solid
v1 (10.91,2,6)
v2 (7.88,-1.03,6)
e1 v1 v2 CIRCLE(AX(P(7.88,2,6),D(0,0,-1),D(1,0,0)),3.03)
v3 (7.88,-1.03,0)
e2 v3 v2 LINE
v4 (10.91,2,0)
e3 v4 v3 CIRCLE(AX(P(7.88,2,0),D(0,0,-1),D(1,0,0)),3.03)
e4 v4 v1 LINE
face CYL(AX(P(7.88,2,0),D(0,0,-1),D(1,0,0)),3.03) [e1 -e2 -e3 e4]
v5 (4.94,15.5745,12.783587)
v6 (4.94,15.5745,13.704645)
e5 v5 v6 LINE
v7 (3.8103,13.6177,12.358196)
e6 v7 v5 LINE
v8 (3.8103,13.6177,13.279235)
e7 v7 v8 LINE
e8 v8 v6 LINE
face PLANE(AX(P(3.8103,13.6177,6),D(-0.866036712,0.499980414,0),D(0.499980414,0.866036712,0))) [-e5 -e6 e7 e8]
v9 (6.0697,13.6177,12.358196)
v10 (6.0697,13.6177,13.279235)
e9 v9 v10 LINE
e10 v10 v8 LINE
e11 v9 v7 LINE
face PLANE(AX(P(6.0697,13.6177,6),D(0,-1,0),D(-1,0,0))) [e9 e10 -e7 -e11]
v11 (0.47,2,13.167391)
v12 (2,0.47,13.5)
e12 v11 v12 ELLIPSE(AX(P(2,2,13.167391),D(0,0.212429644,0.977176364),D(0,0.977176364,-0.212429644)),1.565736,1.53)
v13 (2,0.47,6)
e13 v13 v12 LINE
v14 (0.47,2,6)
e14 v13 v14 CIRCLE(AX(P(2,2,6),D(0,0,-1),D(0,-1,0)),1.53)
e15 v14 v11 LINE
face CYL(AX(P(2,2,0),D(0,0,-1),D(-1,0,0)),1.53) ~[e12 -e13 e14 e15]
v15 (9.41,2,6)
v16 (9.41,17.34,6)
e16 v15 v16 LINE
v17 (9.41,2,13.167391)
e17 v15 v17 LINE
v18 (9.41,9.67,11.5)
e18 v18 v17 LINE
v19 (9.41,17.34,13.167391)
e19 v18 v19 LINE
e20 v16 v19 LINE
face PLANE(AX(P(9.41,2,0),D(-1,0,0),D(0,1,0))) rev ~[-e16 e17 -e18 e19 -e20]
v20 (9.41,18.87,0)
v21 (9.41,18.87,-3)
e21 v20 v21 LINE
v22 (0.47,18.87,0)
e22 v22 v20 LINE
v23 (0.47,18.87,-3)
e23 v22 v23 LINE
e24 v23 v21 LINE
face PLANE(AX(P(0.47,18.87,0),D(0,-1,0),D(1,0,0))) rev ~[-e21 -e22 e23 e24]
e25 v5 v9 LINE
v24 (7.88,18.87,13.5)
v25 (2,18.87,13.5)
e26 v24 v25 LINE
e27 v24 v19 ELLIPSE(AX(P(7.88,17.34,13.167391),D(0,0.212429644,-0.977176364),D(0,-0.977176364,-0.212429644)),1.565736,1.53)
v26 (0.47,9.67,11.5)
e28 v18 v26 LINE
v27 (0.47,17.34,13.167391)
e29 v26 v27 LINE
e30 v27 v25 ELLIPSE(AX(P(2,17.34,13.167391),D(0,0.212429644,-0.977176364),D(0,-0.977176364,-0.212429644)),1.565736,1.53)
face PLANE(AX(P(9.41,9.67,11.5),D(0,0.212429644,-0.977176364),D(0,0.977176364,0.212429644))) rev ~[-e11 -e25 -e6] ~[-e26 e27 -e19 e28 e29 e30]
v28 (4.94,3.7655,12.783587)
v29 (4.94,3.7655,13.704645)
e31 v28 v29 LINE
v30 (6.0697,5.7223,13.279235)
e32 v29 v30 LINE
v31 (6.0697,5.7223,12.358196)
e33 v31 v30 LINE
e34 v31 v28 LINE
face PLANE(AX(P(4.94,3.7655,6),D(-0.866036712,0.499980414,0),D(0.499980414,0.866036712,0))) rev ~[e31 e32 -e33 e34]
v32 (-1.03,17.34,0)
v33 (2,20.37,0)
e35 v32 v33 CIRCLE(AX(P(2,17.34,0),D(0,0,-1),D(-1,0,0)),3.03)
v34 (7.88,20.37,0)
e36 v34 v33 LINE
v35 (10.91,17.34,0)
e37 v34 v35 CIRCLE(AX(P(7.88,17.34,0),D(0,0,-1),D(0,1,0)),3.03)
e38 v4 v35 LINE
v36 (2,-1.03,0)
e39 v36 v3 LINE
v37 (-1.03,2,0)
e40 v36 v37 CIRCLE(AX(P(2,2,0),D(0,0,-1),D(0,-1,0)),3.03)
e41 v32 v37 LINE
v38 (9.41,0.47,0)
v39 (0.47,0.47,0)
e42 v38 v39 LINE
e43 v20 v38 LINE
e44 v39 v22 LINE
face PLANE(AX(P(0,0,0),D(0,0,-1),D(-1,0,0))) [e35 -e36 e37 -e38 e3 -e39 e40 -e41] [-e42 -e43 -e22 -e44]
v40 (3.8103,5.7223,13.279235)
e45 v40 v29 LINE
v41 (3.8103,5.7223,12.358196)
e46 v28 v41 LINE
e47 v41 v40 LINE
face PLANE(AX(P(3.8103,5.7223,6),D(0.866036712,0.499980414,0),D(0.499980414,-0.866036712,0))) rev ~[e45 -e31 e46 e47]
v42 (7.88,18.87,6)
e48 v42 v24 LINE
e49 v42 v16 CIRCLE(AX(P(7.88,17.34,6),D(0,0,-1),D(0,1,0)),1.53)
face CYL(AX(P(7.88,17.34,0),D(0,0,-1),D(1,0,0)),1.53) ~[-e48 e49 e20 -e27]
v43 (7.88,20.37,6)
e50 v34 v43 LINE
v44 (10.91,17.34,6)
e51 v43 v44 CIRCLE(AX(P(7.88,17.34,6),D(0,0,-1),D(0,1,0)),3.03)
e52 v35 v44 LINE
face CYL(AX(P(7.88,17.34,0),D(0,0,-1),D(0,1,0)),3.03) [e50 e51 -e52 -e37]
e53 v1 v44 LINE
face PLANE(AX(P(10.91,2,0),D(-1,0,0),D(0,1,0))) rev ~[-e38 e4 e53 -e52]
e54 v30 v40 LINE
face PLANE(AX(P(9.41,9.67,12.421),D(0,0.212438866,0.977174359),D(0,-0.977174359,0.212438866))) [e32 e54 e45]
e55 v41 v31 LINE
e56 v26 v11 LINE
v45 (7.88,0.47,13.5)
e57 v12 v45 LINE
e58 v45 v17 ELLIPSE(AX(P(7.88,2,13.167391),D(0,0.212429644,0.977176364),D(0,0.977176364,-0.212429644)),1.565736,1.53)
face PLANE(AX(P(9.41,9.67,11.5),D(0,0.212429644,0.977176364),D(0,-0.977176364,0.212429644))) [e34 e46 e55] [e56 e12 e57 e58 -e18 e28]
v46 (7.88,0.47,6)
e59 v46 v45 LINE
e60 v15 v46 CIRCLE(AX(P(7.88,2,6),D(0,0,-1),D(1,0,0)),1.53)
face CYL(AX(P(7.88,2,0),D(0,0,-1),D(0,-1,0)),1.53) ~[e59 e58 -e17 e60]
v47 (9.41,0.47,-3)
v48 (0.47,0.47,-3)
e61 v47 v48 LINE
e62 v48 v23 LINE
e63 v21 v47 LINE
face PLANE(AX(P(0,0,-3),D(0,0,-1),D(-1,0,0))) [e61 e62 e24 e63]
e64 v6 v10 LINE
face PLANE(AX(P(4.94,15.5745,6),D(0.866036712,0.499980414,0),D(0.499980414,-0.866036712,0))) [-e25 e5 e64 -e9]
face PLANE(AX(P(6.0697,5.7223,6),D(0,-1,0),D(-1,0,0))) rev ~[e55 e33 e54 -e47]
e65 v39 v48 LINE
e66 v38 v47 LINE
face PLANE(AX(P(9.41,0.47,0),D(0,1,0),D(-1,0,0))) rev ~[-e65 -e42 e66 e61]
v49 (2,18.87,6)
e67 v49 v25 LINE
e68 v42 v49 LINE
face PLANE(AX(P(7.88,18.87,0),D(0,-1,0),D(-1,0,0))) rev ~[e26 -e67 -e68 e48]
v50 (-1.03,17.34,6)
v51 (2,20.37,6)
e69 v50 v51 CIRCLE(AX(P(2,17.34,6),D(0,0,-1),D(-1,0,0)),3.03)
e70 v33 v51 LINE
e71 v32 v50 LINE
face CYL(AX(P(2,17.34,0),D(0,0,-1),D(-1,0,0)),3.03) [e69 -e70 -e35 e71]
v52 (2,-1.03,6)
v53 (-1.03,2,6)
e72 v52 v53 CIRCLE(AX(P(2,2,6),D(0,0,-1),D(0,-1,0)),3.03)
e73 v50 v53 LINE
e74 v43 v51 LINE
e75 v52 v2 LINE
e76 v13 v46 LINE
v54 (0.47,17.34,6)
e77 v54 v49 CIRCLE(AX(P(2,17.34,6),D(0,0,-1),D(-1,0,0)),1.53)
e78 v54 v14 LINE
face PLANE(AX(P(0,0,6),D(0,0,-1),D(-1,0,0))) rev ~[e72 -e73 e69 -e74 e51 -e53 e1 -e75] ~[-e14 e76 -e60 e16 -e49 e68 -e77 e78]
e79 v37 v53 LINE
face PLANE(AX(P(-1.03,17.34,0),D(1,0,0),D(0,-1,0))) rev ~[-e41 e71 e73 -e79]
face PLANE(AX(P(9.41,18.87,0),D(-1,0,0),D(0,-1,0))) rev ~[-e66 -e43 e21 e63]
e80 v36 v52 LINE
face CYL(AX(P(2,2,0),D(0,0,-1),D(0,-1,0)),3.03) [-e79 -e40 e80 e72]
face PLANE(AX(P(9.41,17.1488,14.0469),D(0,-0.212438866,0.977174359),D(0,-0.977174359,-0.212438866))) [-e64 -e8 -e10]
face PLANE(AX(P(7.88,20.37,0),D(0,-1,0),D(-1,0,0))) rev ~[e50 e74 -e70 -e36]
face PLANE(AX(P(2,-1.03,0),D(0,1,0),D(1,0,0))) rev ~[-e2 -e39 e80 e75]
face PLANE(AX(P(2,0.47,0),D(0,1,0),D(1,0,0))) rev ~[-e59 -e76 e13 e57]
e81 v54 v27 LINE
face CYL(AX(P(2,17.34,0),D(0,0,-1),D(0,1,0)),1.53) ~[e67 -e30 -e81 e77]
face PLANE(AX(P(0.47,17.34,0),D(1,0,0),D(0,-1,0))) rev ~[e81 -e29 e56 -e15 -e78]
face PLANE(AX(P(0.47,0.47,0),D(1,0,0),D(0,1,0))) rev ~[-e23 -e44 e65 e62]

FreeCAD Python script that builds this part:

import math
import FreeCAD as App
import Part
import Sketcher
Q = App.Units.Quantity


def add_polygon(sketch, points):
    """Adds a closed chain of lines whose ends are joined by coincident constraints."""
    first, n = sketch.GeometryCount, len(points)
    for a, b in zip(points, points[1:] + points[:1]):
        sketch.addGeometry(Part.LineSegment(App.Vector(*a, 0), App.Vector(*b, 0)), False)
    for i in range(n):
        sketch.addConstraint(Sketcher.Constraint("Coincident", first + i, 2, first + (i + 1) % n, 1))

doc = App.newDocument("Part")
body = doc.addObject("PartDesign::Body", "Body")

sketch1 = body.newObject("Sketcher::SketchObject", "Sketch")
sketch1.AttachmentSupport = (doc.getObject("XY_Plane"), [""])
sketch1.MapMode = "FlatFace"
sketch1.addGeometry(Part.ArcOfCircle(Part.Circle(App.Vector(2, 17.3, 0), App.Vector(0, 0, 1), 1.5), math.radians(90), math.radians(180)), False)
sketch1.addGeometry(Part.LineSegment(App.Vector(0.5, 17.3, 0), App.Vector(0.5, 2, 0)), False)
sketch1.addGeometry(Part.ArcOfCircle(Part.Circle(App.Vector(2, 2, 0), App.Vector(0, 0, 1), 1.5), math.radians(180), math.radians(270)), False)
sketch1.addGeometry(Part.LineSegment(App.Vector(2, 0.5, 0), App.Vector(7.9, 0.5, 0)), False)
sketch1.addGeometry(Part.ArcOfCircle(Part.Circle(App.Vector(7.9, 2, 0), App.Vector(0, 0, 1), 1.5), math.radians(-90), math.radians(0)), False)
sketch1.addGeometry(Part.LineSegment(App.Vector(9.4, 2, 0), App.Vector(9.4, 17.3, 0)), False)
sketch1.addGeometry(Part.ArcOfCircle(Part.Circle(App.Vector(7.9, 17.3, 0), App.Vector(0, 0, 1), 1.5), math.radians(0), math.radians(90)), False)
sketch1.addGeometry(Part.LineSegment(App.Vector(7.9, 18.9, 0), App.Vector(2, 18.9, 0)), False)
sketch1.addConstraint(Sketcher.Constraint("Tangent", 0, 2, 1, 1))
sketch1.addConstraint(Sketcher.Constraint("Tangent", 1, 2, 2, 1))
sketch1.addConstraint(Sketcher.Constraint("Tangent", 2, 2, 3, 1))
sketch1.addConstraint(Sketcher.Constraint("Tangent", 3, 2, 4, 1))
sketch1.addConstraint(Sketcher.Constraint("Tangent", 4, 2, 5, 1))
sketch1.addConstraint(Sketcher.Constraint("Tangent", 5, 2, 6, 1))
sketch1.addConstraint(Sketcher.Constraint("Tangent", 6, 2, 7, 1))
sketch1.addConstraint(Sketcher.Constraint("Tangent", 7, 2, 0, 1))
sketch1.addConstraint(Sketcher.Constraint("Vertical", 1))
sketch1.addConstraint(Sketcher.Constraint("Horizontal", 3))
sketch1.addConstraint(Sketcher.Constraint("Vertical", 5))
sketch1.addConstraint(Sketcher.Constraint("Horizontal", 7))
sketch1.addConstraint(Sketcher.Constraint("Equal", 0, 2))
sketch1.addConstraint(Sketcher.Constraint("Equal", 2, 4))
sketch1.addConstraint(Sketcher.Constraint("Equal", 4, 6))
sketch1.addConstraint(Sketcher.Constraint("DistanceX", -1, 1, 0, 2, Q("0.47 mm")))
sketch1.addConstraint(Sketcher.Constraint("DistanceY", -1, 1, 2, 2, Q("0.47 mm")))
sketch1.addConstraint(Sketcher.Constraint("Radius", 0, Q("1.53 mm")))
sketch1.addConstraint(Sketcher.Constraint("DistanceX", 3, 1, 3, 2, Q("5.88 mm")))
sketch1.addConstraint(Sketcher.Constraint("DistanceY", 1, 2, 1, 1, Q("15.34 mm")))
pad1 = body.newObject("PartDesign::Pad", "Pad")
pad1.Profile = sketch1
pad1.Length = 13.5

sketch2 = body.newObject("Sketcher::SketchObject", "Sketch001")
sketch2.AttachmentSupport = (doc.getObject("XY_Plane"), [""])
sketch2.MapMode = "FlatFace"
sketch2.addGeometry(Part.LineSegment(App.Vector(2, 20.4, 0), App.Vector(7.9, 20.4, 0)), False)
sketch2.addGeometry(Part.ArcOfCircle(Part.Circle(App.Vector(7.9, 17.3, 0), App.Vector(0, 0, 1), 3), math.radians(0), math.radians(90)), False)
sketch2.addGeometry(Part.LineSegment(App.Vector(10.9, 17.3, 0), App.Vector(10.9, 2, 0)), False)
sketch2.addGeometry(Part.ArcOfCircle(Part.Circle(App.Vector(7.9, 2, 0), App.Vector(0, 0, 1), 3), math.radians(-90), math.radians(0)), False)
sketch2.addGeometry(Part.LineSegment(App.Vector(7.9, -1, 0), App.Vector(2, -1, 0)), False)
sketch2.addGeometry(Part.ArcOfCircle(Part.Circle(App.Vector(2, 2, 0), App.Vector(0, 0, 1), 3), math.radians(180), math.radians(270)), False)
sketch2.addGeometry(Part.LineSegment(App.Vector(-1, 2, 0), App.Vector(-1, 17.3, 0)), False)
sketch2.addGeometry(Part.ArcOfCircle(Part.Circle(App.Vector(2, 17.3, 0), App.Vector(0, 0, 1), 3), math.radians(90), math.radians(180)), False)
sketch2.addGeometry(Part.ArcOfCircle(Part.Circle(App.Vector(2, 2, 0), App.Vector(0, 0, 1), 1.5), math.radians(180), math.radians(270)), False)
sketch2.addGeometry(Part.LineSegment(App.Vector(2, 0.5, 0), App.Vector(7.9, 0.5, 0)), False)
sketch2.addGeometry(Part.ArcOfCircle(Part.Circle(App.Vector(7.9, 2, 0), App.Vector(0, 0, 1), 1.5), math.radians(-90), math.radians(0)), False)
sketch2.addGeometry(Part.LineSegment(App.Vector(9.4, 2, 0), App.Vector(9.4, 17.3, 0)), False)
sketch2.addGeometry(Part.ArcOfCircle(Part.Circle(App.Vector(7.9, 17.3, 0), App.Vector(0, 0, 1), 1.5), math.radians(0), math.radians(90)), False)
sketch2.addGeometry(Part.LineSegment(App.Vector(7.9, 18.9, 0), App.Vector(2, 18.9, 0)), False)
sketch2.addGeometry(Part.ArcOfCircle(Part.Circle(App.Vector(2, 17.3, 0), App.Vector(0, 0, 1), 1.5), math.radians(90), math.radians(180)), False)
sketch2.addGeometry(Part.LineSegment(App.Vector(0.5, 17.3, 0), App.Vector(0.5, 2, 0)), False)
sketch2.addConstraint(Sketcher.Constraint("Tangent", 0, 2, 1, 2))
sketch2.addConstraint(Sketcher.Constraint("Tangent", 1, 1, 2, 1))
sketch2.addConstraint(Sketcher.Constraint("Tangent", 2, 2, 3, 2))
sketch2.addConstraint(Sketcher.Constraint("Tangent", 3, 1, 4, 1))
sketch2.addConstraint(Sketcher.Constraint("Tangent", 4, 2, 5, 2))
sketch2.addConstraint(Sketcher.Constraint("Tangent", 5, 1, 6, 1))
sketch2.addConstraint(Sketcher.Constraint("Tangent", 6, 2, 7, 2))
sketch2.addConstraint(Sketcher.Constraint("Tangent", 7, 1, 0, 1))
sketch2.addConstraint(Sketcher.Constraint("Tangent", 8, 2, 9, 1))
sketch2.addConstraint(Sketcher.Constraint("Tangent", 9, 2, 10, 1))
sketch2.addConstraint(Sketcher.Constraint("Tangent", 10, 2, 11, 1))
sketch2.addConstraint(Sketcher.Constraint("Tangent", 11, 2, 12, 1))
sketch2.addConstraint(Sketcher.Constraint("Tangent", 12, 2, 13, 1))
sketch2.addConstraint(Sketcher.Constraint("Tangent", 13, 2, 14, 1))
sketch2.addConstraint(Sketcher.Constraint("Tangent", 14, 2, 15, 1))
sketch2.addConstraint(Sketcher.Constraint("Tangent", 15, 2, 8, 1))
sketch2.addConstraint(Sketcher.Constraint("Horizontal", 0))
sketch2.addConstraint(Sketcher.Constraint("Vertical", 2))
sketch2.addConstraint(Sketcher.Constraint("Horizontal", 4))
sketch2.addConstraint(Sketcher.Constraint("Vertical", 6))
sketch2.addConstraint(Sketcher.Constraint("Horizontal", 9))
sketch2.addConstraint(Sketcher.Constraint("Vertical", 11))
sketch2.addConstraint(Sketcher.Constraint("Horizontal", 13))
sketch2.addConstraint(Sketcher.Constraint("Vertical", 15))
sketch2.addConstraint(Sketcher.Constraint("Coincident", 8, 3, 5, 3))
sketch2.addConstraint(Sketcher.Constraint("Coincident", 10, 3, 3, 3))
sketch2.addConstraint(Sketcher.Constraint("Coincident", 12, 3, 1, 3))
sketch2.addConstraint(Sketcher.Constraint("Equal", 1, 3))
sketch2.addConstraint(Sketcher.Constraint("Equal", 3, 5))
sketch2.addConstraint(Sketcher.Constraint("Equal", 5, 7))
sketch2.addConstraint(Sketcher.Constraint("Equal", 12, 14))
sketch2.addConstraint(Sketcher.Constraint("DistanceY", 4, 2, 8, 2, Q("1.5 mm")))
sketch2.addConstraint(Sketcher.Constraint("Radius", 1, Q("3.03 mm")))
sketch2.addConstraint(Sketcher.Constraint("DistanceY", -1, 1, 3, 3, Q("2 mm")))
sketch2.addConstraint(Sketcher.Constraint("DistanceX", -1, 1, 5, 3, Q("2 mm")))
sketch2.addConstraint(Sketcher.Constraint("DistanceX", 0, 1, 0, 2, Q("5.88 mm")))
sketch2.addConstraint(Sketcher.Constraint("DistanceY", 2, 2, 2, 1, Q("15.34 mm")))
pad2 = body.newObject("PartDesign::Pad", "Pad001")
pad2.Profile = sketch2
pad2.Length = 6

sketch3 = body.newObject("Sketcher::SketchObject", "Sketch002")
sketch3.AttachmentSupport = (doc.getObject("YZ_Plane"), [""])
sketch3.MapMode = "FlatFace"
sketch3.AttachmentOffset = App.Placement(App.Vector(0, 0, 9.41), App.Rotation())
add_polygon(sketch3, [(19, 14), (0, 14), (10, 12)])
sketch3.addConstraint(Sketcher.Constraint("Horizontal", 0))
sketch3.addConstraint(Sketcher.Constraint("Equal", 1, 2))
sketch3.addConstraint(Sketcher.Constraint("DistanceY", 1, 2, 0, 2, Q("2 mm")))
sketch3.addConstraint(Sketcher.Constraint("DistanceX", 0, 2, 0, 1, Q("18.4 mm")))
sketch3.addConstraint(Sketcher.Constraint("DistanceY", -1, 1, 0, 2, Q("13.5 mm")))
sketch3.addConstraint(Sketcher.Constraint("DistanceX", -1, 1, 0, 2, Q("0.47 mm")))
pocket1 = body.newObject("PartDesign::Pocket", "Pocket")
pocket1.Profile = sketch3
pocket1.Length = 9.175

sketch4 = body.newObject("Sketcher::SketchObject", "Sketch003")
sketch4.AttachmentSupport = (doc.getObject("XY_Plane"), [""])
sketch4.MapMode = "FlatFace"
sketch4.AttachmentOffset = App.Placement(App.Vector(0, 0, 6), App.Rotation())
add_polygon(sketch4, [(6.1, 13.6), (4.9, 15.6), (3.8, 13.6)])
add_polygon(sketch4, [(3.8, 5.7), (4.9, 3.8), (6.1, 5.7)])
sketch4.addConstraint(Sketcher.Constraint("Horizontal", 2))
sketch4.addConstraint(Sketcher.Constraint("Horizontal", 5))
sketch4.addConstraint(Sketcher.Constraint("Parallel", 0, 3))
sketch4.addConstraint(Sketcher.Constraint("Parallel", 1, 4))
sketch4.addConstraint(Sketcher.Constraint("Vertical", 0, 2, 3, 2))
sketch4.addConstraint(Sketcher.Constraint("Vertical", 2, 2, 4, 2))
sketch4.addConstraint(Sketcher.Constraint("Vertical", 1, 2, 5, 2))
sketch4.addConstraint(Sketcher.Constraint("DistanceX", -1, 1, 0, 2, Q("4.94 mm")))
sketch4.addConstraint(Sketcher.Constraint("DistanceX", 2, 1, 2, 2, Q("2.2594 mm")))
sketch4.addConstraint(Sketcher.Constraint("DistanceY", 3, 2, 0, 2, Q("11.809 mm")))
sketch4.addConstraint(Sketcher.Constraint("Distance", 0, Q("2.2595 mm")))
sketch4.addConstraint(Sketcher.Constraint("DistanceY", -1, 1, 0, 2, Q("15.5745 mm")))
pad3 = body.newObject("PartDesign::Pad", "Pad002")
pad3.Profile = sketch4
pad3.Length = 10.7625

sketch5 = body.newObject("Sketcher::SketchObject", "Sketch004")
sketch5.AttachmentSupport = (doc.getObject("YZ_Plane"), [""])
sketch5.MapMode = "FlatFace"
sketch5.AttachmentOffset = App.Placement(App.Vector(0, 0, 9.41), App.Rotation())
add_polygon(sketch5, [(9.7, 12.4), (17.1, 14), (17.3, 19), (0.5, 18.8), (2.2, 14)])
sketch5.addConstraint(Sketcher.Constraint("Horizontal", 0, 2, 3, 2))
sketch5.addConstraint(Sketcher.Constraint("Equal", 0, 4))
sketch5.addConstraint(Sketcher.Constraint("Angle", 1, Q("87.781 deg")))
sketch5.addConstraint(Sketcher.Constraint("Angle", 3, Q("-70.02 deg")))
sketch5.addConstraint(Sketcher.Constraint("DistanceX", -1, 1, 1, 2, Q("17.34 mm")))
sketch5.addConstraint(Sketcher.Constraint("DistanceX", -1, 1, 4, 2, Q("9.67 mm")))
sketch5.addConstraint(Sketcher.Constraint("DistanceY", -1, 1, 0, 2, Q("14.047 mm")))
sketch5.addConstraint(Sketcher.Constraint("DistanceY", -1, 1, 4, 2, Q("12.421 mm")))
sketch5.addConstraint(Sketcher.Constraint("DistanceX", 2, 2, 0, 2, Q("16.674 mm")))
sketch5.addConstraint(Sketcher.Constraint("DistanceY", 0, 2, 2, 2, Q("4.721 mm")))
pocket2 = body.newObject("PartDesign::Pocket", "Pocket001")
pocket2.Profile = sketch5
pocket2.Length = 10.7625

sketch6 = body.newObject("Sketcher::SketchObject", "Sketch005")
sketch6.AttachmentSupport = (doc.getObject("XY_Plane"), [""])
sketch6.MapMode = "FlatFace"
add_polygon(sketch6, [(0, 0), (0, 19), (9, 19), (9, 0)])
sketch6.addConstraint(Sketcher.Constraint("Vertical", 0))
sketch6.addConstraint(Sketcher.Constraint("Horizontal", 1))
sketch6.addConstraint(Sketcher.Constraint("Vertical", 2))
sketch6.addConstraint(Sketcher.Constraint("Horizontal", 3))
sketch6.addConstraint(Sketcher.Constraint("DistanceX", -1, 1, 0, 2, Q("0.47 mm")))
sketch6.addConstraint(Sketcher.Constraint("DistanceY", -1, 1, 2, 2, Q("0.47 mm")))
sketch6.addConstraint(Sketcher.Constraint("DistanceY", 0, 1, 0, 2, Q("18.4 mm")))
sketch6.addConstraint(Sketcher.Constraint("DistanceX", 1, 1, 1, 2, Q("8.94 mm")))
pad4 = body.newObject("PartDesign::Pad", "Pad003")
pad4.Profile = sketch6
pad4.Length = 3
pad4.Reversed = True

doc.recompute()
